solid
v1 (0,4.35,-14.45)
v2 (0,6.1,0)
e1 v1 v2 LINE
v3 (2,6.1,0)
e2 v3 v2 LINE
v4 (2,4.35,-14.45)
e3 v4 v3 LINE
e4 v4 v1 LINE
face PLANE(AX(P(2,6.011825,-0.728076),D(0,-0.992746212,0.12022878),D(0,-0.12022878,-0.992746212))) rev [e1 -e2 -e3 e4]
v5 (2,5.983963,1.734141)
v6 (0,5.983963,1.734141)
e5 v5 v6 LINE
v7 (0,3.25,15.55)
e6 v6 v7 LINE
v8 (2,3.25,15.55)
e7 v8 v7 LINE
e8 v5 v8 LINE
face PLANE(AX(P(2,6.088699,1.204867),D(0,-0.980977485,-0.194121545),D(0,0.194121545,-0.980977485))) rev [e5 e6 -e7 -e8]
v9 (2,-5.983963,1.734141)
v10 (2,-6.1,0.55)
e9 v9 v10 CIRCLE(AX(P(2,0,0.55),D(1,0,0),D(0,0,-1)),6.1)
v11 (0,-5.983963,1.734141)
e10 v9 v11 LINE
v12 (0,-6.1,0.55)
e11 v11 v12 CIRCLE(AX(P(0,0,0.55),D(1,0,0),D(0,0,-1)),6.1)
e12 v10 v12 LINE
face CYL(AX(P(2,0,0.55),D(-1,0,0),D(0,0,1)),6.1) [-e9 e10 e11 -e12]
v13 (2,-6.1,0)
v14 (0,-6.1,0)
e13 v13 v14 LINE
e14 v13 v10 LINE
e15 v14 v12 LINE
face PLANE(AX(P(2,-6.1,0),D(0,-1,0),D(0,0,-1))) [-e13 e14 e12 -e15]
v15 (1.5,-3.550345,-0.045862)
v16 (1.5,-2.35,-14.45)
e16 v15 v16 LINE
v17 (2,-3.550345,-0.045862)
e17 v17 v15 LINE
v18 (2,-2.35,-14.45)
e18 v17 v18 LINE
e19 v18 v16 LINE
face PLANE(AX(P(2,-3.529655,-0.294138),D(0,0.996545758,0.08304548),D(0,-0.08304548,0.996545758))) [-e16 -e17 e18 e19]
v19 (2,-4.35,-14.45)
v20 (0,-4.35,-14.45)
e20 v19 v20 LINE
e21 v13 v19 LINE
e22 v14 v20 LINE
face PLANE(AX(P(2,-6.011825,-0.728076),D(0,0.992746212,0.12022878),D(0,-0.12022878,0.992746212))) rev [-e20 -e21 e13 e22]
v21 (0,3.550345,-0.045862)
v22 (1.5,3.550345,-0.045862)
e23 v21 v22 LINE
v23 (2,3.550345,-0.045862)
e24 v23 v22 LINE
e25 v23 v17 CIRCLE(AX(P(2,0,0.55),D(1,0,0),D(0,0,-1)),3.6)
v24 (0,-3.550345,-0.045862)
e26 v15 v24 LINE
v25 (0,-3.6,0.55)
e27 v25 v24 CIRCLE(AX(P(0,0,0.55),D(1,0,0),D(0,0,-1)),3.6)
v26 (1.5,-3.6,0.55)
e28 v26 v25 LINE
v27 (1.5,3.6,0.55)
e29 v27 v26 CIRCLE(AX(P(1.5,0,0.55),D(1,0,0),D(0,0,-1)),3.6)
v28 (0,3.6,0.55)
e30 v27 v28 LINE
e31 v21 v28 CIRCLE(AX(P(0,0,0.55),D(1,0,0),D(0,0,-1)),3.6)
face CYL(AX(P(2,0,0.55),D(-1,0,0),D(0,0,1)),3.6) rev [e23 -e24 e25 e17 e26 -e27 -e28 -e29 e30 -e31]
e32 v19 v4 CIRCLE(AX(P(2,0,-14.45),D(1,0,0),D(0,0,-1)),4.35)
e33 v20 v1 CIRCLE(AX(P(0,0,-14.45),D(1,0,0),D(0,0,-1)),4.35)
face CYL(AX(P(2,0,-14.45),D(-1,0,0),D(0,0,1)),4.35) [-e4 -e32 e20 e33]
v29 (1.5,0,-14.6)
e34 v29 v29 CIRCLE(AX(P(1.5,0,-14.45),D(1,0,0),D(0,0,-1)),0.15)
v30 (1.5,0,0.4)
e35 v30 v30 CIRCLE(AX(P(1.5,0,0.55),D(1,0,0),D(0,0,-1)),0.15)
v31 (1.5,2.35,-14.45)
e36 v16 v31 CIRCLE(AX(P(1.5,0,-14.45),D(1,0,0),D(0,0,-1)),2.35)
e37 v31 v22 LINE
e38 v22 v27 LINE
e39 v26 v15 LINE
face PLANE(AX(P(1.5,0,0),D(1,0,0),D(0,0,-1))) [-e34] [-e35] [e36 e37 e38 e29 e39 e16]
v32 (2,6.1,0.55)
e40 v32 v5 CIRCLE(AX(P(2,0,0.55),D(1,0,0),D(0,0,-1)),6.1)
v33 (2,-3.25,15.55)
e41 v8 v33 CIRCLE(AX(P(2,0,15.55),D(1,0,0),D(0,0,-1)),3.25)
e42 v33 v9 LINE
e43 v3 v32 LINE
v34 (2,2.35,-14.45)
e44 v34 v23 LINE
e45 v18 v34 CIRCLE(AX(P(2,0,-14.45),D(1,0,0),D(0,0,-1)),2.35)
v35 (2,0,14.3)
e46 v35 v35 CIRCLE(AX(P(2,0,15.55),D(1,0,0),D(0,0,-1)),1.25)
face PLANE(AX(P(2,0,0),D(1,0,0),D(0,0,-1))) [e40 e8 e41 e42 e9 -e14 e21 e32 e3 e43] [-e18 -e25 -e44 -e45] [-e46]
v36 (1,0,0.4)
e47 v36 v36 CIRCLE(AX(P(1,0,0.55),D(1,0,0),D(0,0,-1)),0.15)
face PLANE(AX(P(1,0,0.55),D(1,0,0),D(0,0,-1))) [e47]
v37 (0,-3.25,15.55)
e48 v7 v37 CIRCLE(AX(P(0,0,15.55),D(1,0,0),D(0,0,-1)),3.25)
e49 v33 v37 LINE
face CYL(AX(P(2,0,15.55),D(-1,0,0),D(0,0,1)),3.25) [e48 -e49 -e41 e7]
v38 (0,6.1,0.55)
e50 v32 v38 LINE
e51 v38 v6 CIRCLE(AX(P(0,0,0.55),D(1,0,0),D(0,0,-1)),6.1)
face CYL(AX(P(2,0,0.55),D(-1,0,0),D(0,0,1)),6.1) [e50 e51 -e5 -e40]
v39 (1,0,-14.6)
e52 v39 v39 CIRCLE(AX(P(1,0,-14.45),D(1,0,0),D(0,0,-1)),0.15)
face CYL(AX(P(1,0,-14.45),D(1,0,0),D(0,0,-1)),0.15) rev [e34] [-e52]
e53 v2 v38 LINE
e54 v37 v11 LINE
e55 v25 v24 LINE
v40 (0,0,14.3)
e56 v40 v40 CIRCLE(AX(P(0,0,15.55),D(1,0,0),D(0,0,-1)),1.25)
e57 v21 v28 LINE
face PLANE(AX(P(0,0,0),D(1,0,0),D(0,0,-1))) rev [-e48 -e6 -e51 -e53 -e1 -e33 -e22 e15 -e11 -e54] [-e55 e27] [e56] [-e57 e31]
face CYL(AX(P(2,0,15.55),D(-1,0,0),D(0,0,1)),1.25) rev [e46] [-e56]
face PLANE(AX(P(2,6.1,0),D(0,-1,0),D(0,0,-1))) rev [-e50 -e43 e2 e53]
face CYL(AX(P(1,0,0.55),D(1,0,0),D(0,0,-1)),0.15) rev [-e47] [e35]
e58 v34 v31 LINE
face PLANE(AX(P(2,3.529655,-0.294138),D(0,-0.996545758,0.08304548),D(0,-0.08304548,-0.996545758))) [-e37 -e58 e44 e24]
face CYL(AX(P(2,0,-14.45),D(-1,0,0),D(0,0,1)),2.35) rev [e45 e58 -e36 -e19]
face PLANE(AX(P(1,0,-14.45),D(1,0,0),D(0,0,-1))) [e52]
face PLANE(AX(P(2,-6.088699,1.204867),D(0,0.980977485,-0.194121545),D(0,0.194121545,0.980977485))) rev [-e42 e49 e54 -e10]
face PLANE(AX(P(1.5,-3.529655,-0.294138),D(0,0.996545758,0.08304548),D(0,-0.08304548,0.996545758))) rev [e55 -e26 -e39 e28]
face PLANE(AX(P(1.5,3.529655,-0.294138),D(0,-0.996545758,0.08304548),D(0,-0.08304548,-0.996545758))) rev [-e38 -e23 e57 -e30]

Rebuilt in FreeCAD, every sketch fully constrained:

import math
import FreeCAD as App
import Part
import Sketcher
from FreeCAD import Vector

doc = App.newDocument("Part")
body = doc.addObject("PartDesign::Body", "Body")

sketch1 = doc.addObject("Sketcher::SketchObject", "Sketch")
body.addObject(sketch1)
sketch1.AttachmentSupport = (doc.YZ_Plane, [""])
sketch1.MapMode = "FlatFace"
sketch1.addGeometry([
    Part.ArcOfCircle(Part.Circle(Vector(0, -14.5, 0), Vector(0, 0, 1), 4.3), math.radians(180), math.radians(270)),
    Part.ArcOfCircle(Part.Circle(Vector(0, -14.5, 0), Vector(0, 0, 1), 4.3), math.radians(-90), math.radians(0)),
    Part.LineSegment(Vector(4.3, -14.4, 0), Vector(6.1, 0, 0)),
    Part.LineSegment(Vector(6.1, 0, 0), Vector(6.1, 0.6, 0)),
    Part.ArcOfCircle(Part.Circle(Vector(0, 0.6, 0), Vector(0, 0, 1), 6.1), math.radians(0), math.radians(11.19)),
    Part.LineSegment(Vector(6, 1.7, 0), Vector(3.2, 15.6, 0)),
    Part.ArcOfCircle(Part.Circle(Vector(0, 15.6, 0), Vector(0, 0, 1), 3.2), math.radians(0), math.radians(90)),
    Part.ArcOfCircle(Part.Circle(Vector(0, 15.6, 0), Vector(0, 0, 1), 3.2), math.radians(90), math.radians(180)),
    Part.LineSegment(Vector(-3.2, 15.6, 0), Vector(-6, 1.7, 0)),
    Part.ArcOfCircle(Part.Circle(Vector(0, 0.6, 0), Vector(0, 0, 1), 6.1), math.radians(168.81), math.radians(180)),
    Part.LineSegment(Vector(-6.1, 0.6, 0), Vector(-6.1, 0, 0)),
    Part.LineSegment(Vector(-6.1, 0, 0), Vector(-4.3, -14.4, 0)),
    Part.ArcOfCircle(Part.Circle(Vector(0, 0.5, 0), Vector(0, 0, 1), 3.6), math.radians(-9.53), math.radians(0)),
    Part.LineSegment(Vector(3.6, 0, 0), Vector(2.4, -14.4, 0)),
    Part.ArcOfCircle(Part.Circle(Vector(0, -14.4, 0), Vector(0, 0, 1), 2.4), math.radians(180), math.radians(360)),
    Part.LineSegment(Vector(-2.4, -14.4, 0), Vector(-3.6, 0, 0)),
    Part.ArcOfCircle(Part.Circle(Vector(0, 0.5, 0), Vector(0, 0, 1), 3.6), math.radians(180), math.radians(189.53)),
    Part.ArcOfCircle(Part.Circle(Vector(0, 0.6, 0), Vector(0, 0, 1), 3.6), math.radians(0), math.radians(180)),
    Part.Circle(Vector(0, 15.6, 0), Vector(0, 0, 1), 1.2),
], False)
sketch1.addConstraint([
    Sketcher.Constraint("Tangent", 0, 2, 1, 1),
    Sketcher.Constraint("Coincident", 1, 2, 2, 1),
    Sketcher.Constraint("Coincident", 2, 2, 3, 1),
    Sketcher.Constraint("Tangent", 3, 2, 4, 1),
    Sketcher.Constraint("Tangent", 4, 2, 5, 1),
    Sketcher.Constraint("Coincident", 5, 2, 6, 1),
    Sketcher.Constraint("Tangent", 6, 2, 7, 1),
    Sketcher.Constraint("Coincident", 7, 2, 8, 1),
    Sketcher.Constraint("Tangent", 8, 2, 9, 1),
    Sketcher.Constraint("Tangent", 9, 2, 10, 1),
    Sketcher.Constraint("Coincident", 10, 2, 11, 1),
    Sketcher.Constraint("Coincident", 11, 2, 0, 1),
    Sketcher.Constraint("Coincident", 12, 1, 13, 1),
    Sketcher.Constraint("Coincident", 13, 2, 14, 2),
    Sketcher.Constraint("Coincident", 14, 1, 15, 1),
    Sketcher.Constraint("Coincident", 15, 2, 16, 2),
    Sketcher.Constraint("Tangent", 16, 1, 17, 2),
    Sketcher.Constraint("Tangent", 17, 1, 12, 2),
    Sketcher.Constraint("Vertical", 3),
    Sketcher.Constraint("Vertical", 10),
    Sketcher.Constraint("Coincident", 9, 3, 4, 3),
    Sketcher.Constraint("Coincident", 12, 3, 4, 3),
    Sketcher.Constraint("Coincident", 14, 3, 0, 3),
    Sketcher.Constraint("Coincident", 18, 3, 6, 3),
    Sketcher.Constraint("Equal", 0, 1),
    Sketcher.Constraint("Equal", 6, 7),
    Sketcher.Constraint("Equal", 4, 9),
    Sketcher.Constraint("Equal", 12, 16),
    Sketcher.Constraint("Equal", 16, 17),
    Sketcher.Constraint("Symmetric", 0, 2, 6, 2, -1, 1),
    Sketcher.Constraint("Symmetric", 2, 2, 10, 2, -1, 1),
    Sketcher.Constraint("Symmetric", 5, 2, 7, 2, -2),
    Sketcher.Constraint("Symmetric", 1, 2, 11, 2, -2),
    Sketcher.Constraint("PointOnObject", 0, 2, -2),
    Sketcher.Constraint("PointOnObject", 2, 2, -1),
    Sketcher.Constraint("Horizontal", 14, 3, 1, 2),
    Sketcher.Constraint("Horizontal", 18, 3, 5, 2),
    Sketcher.Constraint("Horizontal", 11, 2, 13, 2),
    Sketcher.Constraint("Horizontal", 13, 2, 14, 1),
    Sketcher.Constraint("Horizontal", 12, 1, 15, 2),
    Sketcher.Constraint("Horizontal", 9, 2, 16, 1),
    Sketcher.Constraint("Horizontal", 16, 1, 17, 1),
    Sketcher.Constraint("Diameter", 18, 2.5),
    Sketcher.Constraint("Radius", 4, 6.1),
    Sketcher.Constraint("Radius", 12, 3.6),
    Sketcher.Constraint("Radius", 0, 4.35),
    Sketcher.Constraint("Radius", 6, 3.25),
    Sketcher.Constraint("Radius", 14, 2.35),
    Sketcher.Constraint("DistanceY", 0, 3, 4, 3, 15.0),
    Sketcher.Constraint("DistanceY", 4, 3, 6, 3, 15.0),
    Sketcher.Constraint("Distance", 13, 14.454066),
])
pad1 = doc.addObject("PartDesign::Pad", "Pad")
body.addObject(pad1)
pad1.Profile = sketch1
pad1.Length = 2

sketch2 = doc.addObject("Sketcher::SketchObject", "Sketch001")
body.addObject(sketch2)
sketch2.AttachmentSupport = (doc.YZ_Plane, [""])
sketch2.MapMode = "FlatFace"
sketch2.addGeometry([
    Part.ArcOfCircle(Part.Circle(Vector(0, -14.4, 0), Vector(0, 0, 1), 2.4), math.radians(180), math.radians(360)),
    Part.LineSegment(Vector(2.4, -14.4, 0), Vector(3.6, 0, 0)),
    Part.LineSegment(Vector(3.6, 0, 0), Vector(3.6, 0.6, 0)),
    Part.ArcOfCircle(Part.Circle(Vector(0, 0.6, 0), Vector(0, 0, 1), 3.6), math.radians(0), math.radians(180)),
    Part.LineSegment(Vector(-3.6, 0.6, 0), Vector(-3.6, 0, 0)),
    Part.LineSegment(Vector(-3.6, 0, 0), Vector(-2.4, -14.4, 0)),
], False)
sketch2.addConstraint([
    Sketcher.Constraint("Coincident", 0, 2, 1, 1),
    Sketcher.Constraint("Coincident", 1, 2, 2, 1),
    Sketcher.Constraint("Coincident", 2, 2, 3, 1),
    Sketcher.Constraint("Coincident", 3, 2, 4, 1),
    Sketcher.Constraint("Coincident", 4, 2, 5, 1),
    Sketcher.Constraint("Coincident", 5, 2, 0, 1),
    Sketcher.Constraint("Symmetric", 2, 2, 3, 2, -2),
    Sketcher.Constraint("Symmetric", 1, 2, 4, 2, -2),
    Sketcher.Constraint("Symmetric", 0, 2, 5, 2, -2),
    Sketcher.Constraint("Parallel", 1, 2),
    Sketcher.Constraint("Horizontal", 3, 3, 2, 2),
    Sketcher.Constraint("Radius", 3, 3.6),
    Sketcher.Constraint("Radius", 0, 2.35),
    Sketcher.Constraint("DistanceY", 0, 3, 3, 3, 15.0),
    Sketcher.Constraint("DistanceY", 0, 2, 3, 3, 15.0),
    Sketcher.Constraint("DistanceY", 0, 3, -1, 1, 14.45),
    Sketcher.Constraint("DistanceX", 4, 2, 1, 2, 7.10069),
])
pad2 = doc.addObject("PartDesign::Pad", "Pad001")
body.addObject(pad2)
pad2.Profile = sketch2
pad2.Length = 1.5

sketch3 = doc.addObject("Sketcher::SketchObject", "Sketch002")
body.addObject(sketch3)
sketch3.AttachmentSupport = (doc.YZ_Plane, [""])
sketch3.MapMode = "FlatFace"
sketch3.AttachmentOffset = App.Placement(Vector(0, 0, 1.5), App.Rotation())
sketch3.addGeometry([
    Part.Circle(Vector(0, 0.55, 0), Vector(0, 0, 1), 0.15),
    Part.Circle(Vector(0, -14.45, 0), Vector(0, 0, 1), 0.15),
], False)
sketch3.addConstraint([
    Sketcher.Constraint("Equal", 0, 1),
    Sketcher.Constraint("PointOnObject", 0, 3, -2),
    Sketcher.Constraint("PointOnObject", 1, 3, -2),
    Sketcher.Constraint("Diameter", 0, 0.3),
    Sketcher.Constraint("DistanceY", 1, 3, 0, 3, 15.0),
    Sketcher.Constraint("DistanceY", -1, 1, 0, 3, 0.55),
])
pocket1 = doc.addObject("PartDesign::Pocket", "Pocket")
body.addObject(pocket1)
pocket1.Profile = sketch3
pocket1.Length = 0.5

doc.recompute()
